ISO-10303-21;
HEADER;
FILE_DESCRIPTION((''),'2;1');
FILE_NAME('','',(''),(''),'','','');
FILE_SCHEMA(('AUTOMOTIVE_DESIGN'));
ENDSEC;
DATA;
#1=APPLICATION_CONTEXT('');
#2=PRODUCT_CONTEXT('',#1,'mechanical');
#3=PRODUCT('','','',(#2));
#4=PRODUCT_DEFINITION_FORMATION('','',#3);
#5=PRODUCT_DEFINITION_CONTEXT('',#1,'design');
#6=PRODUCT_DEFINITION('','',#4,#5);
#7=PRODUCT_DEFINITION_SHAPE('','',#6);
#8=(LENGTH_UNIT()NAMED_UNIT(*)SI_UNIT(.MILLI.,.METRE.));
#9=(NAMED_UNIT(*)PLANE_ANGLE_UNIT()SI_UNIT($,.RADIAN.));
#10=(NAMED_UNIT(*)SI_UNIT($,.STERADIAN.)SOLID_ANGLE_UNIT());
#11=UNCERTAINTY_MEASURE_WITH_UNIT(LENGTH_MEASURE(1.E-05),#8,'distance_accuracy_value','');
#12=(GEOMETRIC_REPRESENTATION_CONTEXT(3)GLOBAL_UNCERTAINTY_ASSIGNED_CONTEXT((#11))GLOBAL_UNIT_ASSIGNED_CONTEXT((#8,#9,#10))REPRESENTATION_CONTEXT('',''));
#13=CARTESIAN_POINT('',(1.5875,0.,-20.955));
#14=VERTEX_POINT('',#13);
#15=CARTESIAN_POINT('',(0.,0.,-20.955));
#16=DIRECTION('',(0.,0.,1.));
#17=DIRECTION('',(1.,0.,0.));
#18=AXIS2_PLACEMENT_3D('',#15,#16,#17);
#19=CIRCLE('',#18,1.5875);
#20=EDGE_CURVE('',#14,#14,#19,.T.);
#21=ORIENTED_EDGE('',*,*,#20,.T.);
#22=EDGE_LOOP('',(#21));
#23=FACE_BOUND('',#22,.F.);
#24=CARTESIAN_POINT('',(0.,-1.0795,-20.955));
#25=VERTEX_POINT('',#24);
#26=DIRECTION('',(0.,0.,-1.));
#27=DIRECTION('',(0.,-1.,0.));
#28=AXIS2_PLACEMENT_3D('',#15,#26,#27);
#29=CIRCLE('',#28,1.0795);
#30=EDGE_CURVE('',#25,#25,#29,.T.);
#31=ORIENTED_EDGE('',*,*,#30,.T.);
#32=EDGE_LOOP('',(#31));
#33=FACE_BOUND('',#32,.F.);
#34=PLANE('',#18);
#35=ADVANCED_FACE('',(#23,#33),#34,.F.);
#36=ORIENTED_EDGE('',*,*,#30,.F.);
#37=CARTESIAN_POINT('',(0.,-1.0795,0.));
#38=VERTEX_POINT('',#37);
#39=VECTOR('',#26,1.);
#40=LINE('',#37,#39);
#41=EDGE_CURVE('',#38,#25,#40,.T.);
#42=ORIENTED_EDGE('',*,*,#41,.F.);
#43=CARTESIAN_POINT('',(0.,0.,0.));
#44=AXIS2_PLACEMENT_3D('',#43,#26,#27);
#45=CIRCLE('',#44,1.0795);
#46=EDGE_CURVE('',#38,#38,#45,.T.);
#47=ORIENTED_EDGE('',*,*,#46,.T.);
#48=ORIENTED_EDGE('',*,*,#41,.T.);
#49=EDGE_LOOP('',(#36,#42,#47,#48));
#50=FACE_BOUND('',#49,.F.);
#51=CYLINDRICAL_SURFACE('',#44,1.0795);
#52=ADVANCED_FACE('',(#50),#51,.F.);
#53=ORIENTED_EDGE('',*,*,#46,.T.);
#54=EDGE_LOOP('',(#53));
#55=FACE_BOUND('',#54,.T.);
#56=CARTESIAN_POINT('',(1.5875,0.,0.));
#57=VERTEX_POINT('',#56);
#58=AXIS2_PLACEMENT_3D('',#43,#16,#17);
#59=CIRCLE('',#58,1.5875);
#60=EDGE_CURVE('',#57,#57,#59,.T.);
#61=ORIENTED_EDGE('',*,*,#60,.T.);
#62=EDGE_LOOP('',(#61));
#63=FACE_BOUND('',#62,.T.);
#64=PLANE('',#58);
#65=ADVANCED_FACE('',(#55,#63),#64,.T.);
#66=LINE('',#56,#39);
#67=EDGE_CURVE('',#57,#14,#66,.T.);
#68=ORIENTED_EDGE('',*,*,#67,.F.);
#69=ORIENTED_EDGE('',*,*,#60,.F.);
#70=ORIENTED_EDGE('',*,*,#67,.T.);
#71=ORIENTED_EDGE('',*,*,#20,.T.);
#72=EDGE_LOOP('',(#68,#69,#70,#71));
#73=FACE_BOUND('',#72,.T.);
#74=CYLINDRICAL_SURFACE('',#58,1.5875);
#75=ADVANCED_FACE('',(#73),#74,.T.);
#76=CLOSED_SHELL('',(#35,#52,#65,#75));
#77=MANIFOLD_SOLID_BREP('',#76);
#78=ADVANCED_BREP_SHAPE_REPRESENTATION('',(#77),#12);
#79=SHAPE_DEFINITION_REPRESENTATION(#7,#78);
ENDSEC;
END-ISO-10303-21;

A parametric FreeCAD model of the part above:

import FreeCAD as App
import Part
import Sketcher
from FreeCAD import Vector
Q = App.Units.Quantity

doc = App.newDocument("Part")
body = doc.addObject("PartDesign::Body", "Body")

# Sketch on XY plane
sketch1 = body.newObject("Sketcher::SketchObject", "Sketch")
sketch1.AttachmentSupport = (doc.getObject("XY_Plane"), [""])
sketch1.MapMode = "FlatFace"
sketch1.addGeometry(Part.Circle(Vector(0, 0, 0), Vector(0, 0, 1), 1.5875), False)
sketch1.addConstraint(Sketcher.Constraint("Coincident", 0, 3, -1, 1))
sketch1.addConstraint(Sketcher.Constraint("Diameter", 0, Q("0.125 in")))
pad1 = body.newObject("PartDesign::Pad", "Pad")
pad1.Profile = sketch1
pad1.Length = Q("0.825 in")
pad1.Reversed = True

# Sketch on XY plane
sketch2 = body.newObject("Sketcher::SketchObject", "Sketch001")
sketch2.AttachmentSupport = (doc.getObject("XY_Plane"), [""])
sketch2.MapMode = "FlatFace"
sketch2.addGeometry(Part.Circle(Vector(0, 0, 0), Vector(0, 0, 1), 1.0795), False)
sketch2.addConstraint(Sketcher.Constraint("Coincident", 0, 3, -1, 1))
sketch2.addConstraint(Sketcher.Constraint("Diameter", 0, Q("0.085 in")))
doc.recompute()
hole = body.newObject("PartDesign::Hole", "Hole")
hole.Profile = sketch2
hole.ThreadType = "None"
hole.Diameter = Q("0.085 in")
hole.DepthType = "ThroughAll"

doc.recompute()
